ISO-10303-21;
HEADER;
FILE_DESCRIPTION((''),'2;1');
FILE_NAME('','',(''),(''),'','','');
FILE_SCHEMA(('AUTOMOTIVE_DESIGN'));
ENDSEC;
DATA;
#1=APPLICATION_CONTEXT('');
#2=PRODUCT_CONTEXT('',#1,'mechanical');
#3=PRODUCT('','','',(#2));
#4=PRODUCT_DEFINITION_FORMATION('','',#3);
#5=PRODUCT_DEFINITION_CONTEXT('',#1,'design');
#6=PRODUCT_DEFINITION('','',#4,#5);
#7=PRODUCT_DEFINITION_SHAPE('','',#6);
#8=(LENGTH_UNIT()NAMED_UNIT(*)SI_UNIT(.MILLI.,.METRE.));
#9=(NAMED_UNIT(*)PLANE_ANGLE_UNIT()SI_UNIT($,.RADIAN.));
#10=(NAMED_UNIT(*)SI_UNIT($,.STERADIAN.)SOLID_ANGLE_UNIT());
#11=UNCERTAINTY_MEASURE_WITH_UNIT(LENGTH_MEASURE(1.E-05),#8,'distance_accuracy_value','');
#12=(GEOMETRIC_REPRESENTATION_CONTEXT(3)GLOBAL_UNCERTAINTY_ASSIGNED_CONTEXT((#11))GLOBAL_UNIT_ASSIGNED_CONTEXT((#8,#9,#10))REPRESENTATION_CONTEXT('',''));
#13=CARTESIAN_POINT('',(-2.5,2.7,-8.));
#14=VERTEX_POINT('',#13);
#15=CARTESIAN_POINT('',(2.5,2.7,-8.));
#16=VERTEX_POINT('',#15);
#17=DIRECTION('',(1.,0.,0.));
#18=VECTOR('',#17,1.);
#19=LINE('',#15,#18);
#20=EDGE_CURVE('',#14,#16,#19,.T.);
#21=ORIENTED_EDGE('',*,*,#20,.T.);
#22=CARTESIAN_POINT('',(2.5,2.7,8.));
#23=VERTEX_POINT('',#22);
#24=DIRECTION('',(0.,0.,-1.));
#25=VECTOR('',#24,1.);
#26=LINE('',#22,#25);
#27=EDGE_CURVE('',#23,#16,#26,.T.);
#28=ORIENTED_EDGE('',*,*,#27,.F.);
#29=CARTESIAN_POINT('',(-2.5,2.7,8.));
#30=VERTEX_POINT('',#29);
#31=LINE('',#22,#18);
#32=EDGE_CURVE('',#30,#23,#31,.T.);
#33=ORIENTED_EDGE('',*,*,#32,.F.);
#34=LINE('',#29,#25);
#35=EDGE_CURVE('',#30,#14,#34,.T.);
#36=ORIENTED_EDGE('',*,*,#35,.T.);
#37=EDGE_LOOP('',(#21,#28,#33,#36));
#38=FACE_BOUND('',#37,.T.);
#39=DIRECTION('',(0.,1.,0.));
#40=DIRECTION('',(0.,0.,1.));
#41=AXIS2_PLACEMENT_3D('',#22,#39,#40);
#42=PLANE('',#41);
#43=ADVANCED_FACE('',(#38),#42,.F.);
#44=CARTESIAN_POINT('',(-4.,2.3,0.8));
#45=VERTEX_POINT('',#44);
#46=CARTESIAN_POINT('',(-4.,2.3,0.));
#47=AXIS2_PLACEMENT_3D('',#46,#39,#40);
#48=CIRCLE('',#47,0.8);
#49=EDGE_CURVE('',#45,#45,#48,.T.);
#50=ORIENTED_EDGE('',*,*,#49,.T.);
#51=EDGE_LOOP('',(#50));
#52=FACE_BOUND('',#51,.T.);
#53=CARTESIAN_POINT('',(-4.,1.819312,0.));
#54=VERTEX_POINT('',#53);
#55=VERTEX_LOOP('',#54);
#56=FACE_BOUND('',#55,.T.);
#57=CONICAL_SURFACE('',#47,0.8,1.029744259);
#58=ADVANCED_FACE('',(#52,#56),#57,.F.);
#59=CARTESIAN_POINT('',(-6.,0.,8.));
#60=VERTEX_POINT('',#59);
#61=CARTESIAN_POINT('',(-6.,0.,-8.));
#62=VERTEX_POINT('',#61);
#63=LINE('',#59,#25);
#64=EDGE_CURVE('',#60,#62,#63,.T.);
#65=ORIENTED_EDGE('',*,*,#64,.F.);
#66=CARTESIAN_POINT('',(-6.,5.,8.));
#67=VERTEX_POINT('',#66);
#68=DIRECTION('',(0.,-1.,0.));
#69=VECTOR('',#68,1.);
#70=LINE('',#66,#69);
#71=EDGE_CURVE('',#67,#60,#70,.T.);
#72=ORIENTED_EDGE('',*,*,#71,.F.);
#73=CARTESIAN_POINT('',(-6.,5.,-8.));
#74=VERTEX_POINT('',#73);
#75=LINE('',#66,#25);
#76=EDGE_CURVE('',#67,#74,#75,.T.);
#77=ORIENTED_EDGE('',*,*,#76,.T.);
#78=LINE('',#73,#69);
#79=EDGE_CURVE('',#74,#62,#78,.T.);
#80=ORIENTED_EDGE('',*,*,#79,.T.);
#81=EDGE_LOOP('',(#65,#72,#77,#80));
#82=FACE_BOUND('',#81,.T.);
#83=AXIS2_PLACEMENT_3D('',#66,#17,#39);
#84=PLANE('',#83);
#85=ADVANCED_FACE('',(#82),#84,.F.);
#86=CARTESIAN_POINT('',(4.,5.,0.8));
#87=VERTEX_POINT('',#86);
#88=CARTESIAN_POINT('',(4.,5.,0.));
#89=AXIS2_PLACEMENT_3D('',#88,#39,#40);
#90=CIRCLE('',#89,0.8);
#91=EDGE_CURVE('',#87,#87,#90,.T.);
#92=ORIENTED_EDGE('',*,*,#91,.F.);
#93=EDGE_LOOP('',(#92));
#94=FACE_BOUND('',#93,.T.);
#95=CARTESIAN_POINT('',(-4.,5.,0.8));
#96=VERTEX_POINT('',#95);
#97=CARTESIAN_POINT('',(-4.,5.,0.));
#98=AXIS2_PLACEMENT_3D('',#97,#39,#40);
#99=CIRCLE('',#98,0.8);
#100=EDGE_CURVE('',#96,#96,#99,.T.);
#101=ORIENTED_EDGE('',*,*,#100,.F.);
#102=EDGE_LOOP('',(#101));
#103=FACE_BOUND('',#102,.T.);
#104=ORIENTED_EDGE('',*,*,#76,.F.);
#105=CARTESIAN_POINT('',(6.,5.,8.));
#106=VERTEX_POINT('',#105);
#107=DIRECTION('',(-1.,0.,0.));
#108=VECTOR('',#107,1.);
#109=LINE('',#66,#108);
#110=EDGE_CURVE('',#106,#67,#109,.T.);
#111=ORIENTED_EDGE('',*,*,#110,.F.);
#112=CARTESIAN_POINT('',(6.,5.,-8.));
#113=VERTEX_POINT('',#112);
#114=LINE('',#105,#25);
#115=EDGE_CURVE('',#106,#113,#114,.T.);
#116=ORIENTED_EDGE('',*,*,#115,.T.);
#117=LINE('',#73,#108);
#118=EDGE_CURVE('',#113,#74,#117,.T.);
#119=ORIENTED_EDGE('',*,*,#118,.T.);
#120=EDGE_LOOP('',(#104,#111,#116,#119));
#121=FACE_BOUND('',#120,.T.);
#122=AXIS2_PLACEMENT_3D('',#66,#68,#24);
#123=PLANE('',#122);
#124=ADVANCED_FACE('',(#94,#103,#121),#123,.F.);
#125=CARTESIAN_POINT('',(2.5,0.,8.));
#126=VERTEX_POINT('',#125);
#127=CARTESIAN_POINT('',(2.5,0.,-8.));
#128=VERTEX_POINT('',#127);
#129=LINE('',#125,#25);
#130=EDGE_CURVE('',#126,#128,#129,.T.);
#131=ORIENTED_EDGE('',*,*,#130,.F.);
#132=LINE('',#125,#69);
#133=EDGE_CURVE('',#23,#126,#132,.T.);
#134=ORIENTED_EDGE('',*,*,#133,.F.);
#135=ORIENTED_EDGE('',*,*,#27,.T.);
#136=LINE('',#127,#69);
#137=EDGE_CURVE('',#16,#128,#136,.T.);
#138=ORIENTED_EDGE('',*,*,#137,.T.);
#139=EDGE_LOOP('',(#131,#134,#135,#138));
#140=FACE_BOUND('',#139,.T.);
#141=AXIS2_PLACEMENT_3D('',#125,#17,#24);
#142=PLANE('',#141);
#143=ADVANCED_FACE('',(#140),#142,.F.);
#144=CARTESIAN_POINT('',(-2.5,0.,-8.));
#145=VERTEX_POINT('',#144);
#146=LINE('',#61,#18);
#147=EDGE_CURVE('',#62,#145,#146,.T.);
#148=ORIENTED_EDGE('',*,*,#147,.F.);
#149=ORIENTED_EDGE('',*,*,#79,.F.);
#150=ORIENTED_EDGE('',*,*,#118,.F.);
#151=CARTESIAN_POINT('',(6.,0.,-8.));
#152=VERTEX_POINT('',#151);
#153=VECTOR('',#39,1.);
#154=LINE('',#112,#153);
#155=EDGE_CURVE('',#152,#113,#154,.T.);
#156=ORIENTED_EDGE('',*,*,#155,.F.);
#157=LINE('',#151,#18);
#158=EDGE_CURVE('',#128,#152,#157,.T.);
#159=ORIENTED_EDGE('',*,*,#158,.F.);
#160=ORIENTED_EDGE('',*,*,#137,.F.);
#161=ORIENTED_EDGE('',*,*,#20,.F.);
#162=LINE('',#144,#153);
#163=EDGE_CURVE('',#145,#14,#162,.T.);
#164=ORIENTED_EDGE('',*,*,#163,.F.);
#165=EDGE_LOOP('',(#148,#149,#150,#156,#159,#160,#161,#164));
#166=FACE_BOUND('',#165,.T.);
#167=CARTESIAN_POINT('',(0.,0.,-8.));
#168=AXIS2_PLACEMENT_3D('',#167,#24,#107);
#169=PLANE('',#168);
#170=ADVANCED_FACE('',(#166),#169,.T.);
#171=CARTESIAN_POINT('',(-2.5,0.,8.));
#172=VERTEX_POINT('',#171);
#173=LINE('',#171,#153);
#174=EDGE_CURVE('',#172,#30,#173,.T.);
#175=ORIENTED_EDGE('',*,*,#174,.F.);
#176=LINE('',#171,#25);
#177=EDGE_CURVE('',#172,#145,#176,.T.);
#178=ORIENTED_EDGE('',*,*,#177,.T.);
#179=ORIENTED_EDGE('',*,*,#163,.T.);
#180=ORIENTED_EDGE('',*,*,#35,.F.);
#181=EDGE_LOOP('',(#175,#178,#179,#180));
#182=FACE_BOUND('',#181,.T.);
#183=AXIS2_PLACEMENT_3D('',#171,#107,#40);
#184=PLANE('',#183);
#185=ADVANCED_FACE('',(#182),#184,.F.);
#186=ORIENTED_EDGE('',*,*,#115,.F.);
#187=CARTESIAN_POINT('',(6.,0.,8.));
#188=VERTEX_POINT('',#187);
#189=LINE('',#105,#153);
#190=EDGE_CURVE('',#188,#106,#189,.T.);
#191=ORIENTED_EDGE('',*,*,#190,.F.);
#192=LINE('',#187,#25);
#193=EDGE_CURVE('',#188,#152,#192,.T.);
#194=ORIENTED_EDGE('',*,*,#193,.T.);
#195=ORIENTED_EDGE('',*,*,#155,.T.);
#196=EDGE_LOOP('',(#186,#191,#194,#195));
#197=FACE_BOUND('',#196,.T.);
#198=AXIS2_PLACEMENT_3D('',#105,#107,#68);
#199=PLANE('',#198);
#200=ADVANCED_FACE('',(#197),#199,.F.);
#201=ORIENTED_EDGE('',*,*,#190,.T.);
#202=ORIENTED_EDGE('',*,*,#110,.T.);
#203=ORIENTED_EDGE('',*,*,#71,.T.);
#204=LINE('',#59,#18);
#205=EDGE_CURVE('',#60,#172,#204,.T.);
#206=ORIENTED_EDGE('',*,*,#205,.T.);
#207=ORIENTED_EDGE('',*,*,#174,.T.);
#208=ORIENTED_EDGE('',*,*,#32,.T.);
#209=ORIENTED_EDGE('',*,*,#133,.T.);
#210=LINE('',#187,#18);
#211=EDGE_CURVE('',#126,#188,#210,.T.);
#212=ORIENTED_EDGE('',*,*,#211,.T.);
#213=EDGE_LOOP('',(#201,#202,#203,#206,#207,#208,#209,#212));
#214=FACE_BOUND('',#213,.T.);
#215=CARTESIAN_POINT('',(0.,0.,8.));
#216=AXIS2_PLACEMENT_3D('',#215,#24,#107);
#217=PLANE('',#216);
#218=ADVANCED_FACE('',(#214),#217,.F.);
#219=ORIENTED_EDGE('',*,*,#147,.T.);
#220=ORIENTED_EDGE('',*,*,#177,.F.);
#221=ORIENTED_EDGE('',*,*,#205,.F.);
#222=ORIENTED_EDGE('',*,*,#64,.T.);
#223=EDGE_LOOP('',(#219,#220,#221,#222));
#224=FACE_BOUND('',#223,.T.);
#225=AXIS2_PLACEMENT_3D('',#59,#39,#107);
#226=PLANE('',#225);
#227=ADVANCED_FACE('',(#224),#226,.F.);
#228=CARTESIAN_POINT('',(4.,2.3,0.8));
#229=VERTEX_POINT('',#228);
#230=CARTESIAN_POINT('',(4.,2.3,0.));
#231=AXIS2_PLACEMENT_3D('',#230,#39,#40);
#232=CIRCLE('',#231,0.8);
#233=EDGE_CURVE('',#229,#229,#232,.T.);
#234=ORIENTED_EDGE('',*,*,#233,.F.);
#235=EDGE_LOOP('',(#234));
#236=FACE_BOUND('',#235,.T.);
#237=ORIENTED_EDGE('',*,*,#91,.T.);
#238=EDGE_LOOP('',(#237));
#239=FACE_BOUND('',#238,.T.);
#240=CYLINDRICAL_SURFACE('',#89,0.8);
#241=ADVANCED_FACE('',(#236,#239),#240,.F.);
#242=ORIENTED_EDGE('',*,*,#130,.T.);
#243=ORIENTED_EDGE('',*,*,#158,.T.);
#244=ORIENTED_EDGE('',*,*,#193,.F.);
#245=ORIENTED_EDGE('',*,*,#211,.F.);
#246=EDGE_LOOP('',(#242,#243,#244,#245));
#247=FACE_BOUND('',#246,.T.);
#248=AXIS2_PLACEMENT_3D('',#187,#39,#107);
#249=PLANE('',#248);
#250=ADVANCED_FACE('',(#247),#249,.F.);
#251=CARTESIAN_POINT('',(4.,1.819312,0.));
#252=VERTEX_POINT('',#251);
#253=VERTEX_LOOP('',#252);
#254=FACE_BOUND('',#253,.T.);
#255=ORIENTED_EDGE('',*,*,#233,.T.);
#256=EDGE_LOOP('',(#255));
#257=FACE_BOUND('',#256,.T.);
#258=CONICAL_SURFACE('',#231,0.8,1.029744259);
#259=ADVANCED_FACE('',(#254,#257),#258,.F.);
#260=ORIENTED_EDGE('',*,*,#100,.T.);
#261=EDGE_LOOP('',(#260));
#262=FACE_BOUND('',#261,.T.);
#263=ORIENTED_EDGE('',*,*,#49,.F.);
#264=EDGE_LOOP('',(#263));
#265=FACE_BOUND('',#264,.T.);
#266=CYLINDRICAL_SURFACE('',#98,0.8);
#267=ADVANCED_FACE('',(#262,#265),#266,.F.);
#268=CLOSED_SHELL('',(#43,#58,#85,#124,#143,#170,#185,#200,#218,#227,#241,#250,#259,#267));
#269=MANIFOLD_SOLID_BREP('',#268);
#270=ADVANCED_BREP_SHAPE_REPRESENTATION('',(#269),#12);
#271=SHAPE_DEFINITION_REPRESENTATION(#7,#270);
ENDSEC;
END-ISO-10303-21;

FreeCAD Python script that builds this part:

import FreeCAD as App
import Part
import Sketcher
from FreeCAD import Vector


def add_polygon(sketch, points):
    """Adds a closed chain of lines whose ends are joined by coincident constraints."""
    first, n = sketch.GeometryCount, len(points)
    for a, b in zip(points, points[1:] + points[:1]):
        sketch.addGeometry(Part.LineSegment(App.Vector(*a, 0), App.Vector(*b, 0)), False)
    for i in range(n):
        sketch.addConstraint(Sketcher.Constraint("Coincident", first + i, 2, first + (i + 1) % n, 1))

doc = App.newDocument("Part")
params = doc.addObject("Spreadsheet::Sheet", "Params")
for row, (alias, value) in enumerate([
    ("sketch1_width", "12 mm"),
    ("sketch1_width2", "5 mm"),
    ("sketch1_height", "2.7 mm"),
    ("pad1_length", "16 mm"),
    ("sketch2_diameter", "1.6 mm"),
    ("hole_diameter", "1.6 mm"),
    ("hole_depth", "2.7 mm"),
], start=1):
    params.set(f"A{row}", alias)
    params.set(f"B{row}", "=" + value)
    params.setAlias(f"B{row}", alias)

body = doc.addObject("PartDesign::Body", "Body")

sketch1 = body.newObject("Sketcher::SketchObject", "Sketch")
sketch1.AttachmentSupport = (doc.getObject("XY_Plane"), [""])
sketch1.MapMode = "FlatFace"
add_polygon(sketch1, [(6, 5), (-6, 5), (-6, 0), (-2.5, 0), (-2.5, 2.7), (2.5, 2.7), (2.5, 0), (6, 0)])
sketch1.addConstraint(Sketcher.Constraint("Horizontal", 0))
sketch1.addConstraint(Sketcher.Constraint("Vertical", 1))
sketch1.addConstraint(Sketcher.Constraint("Horizontal", 2))
sketch1.addConstraint(Sketcher.Constraint("Vertical", 3))
sketch1.addConstraint(Sketcher.Constraint("Horizontal", 4))
sketch1.addConstraint(Sketcher.Constraint("Vertical", 5))
sketch1.addConstraint(Sketcher.Constraint("Horizontal", 6))
sketch1.addConstraint(Sketcher.Constraint("Vertical", 7))
sketch1.addConstraint(Sketcher.Constraint("Symmetric", 2, 2, 5, 2, -1, 1))
sketch1.addConstraint(Sketcher.Constraint("Symmetric", 1, 2, 6, 2, -2))
sketch1.addConstraint(Sketcher.Constraint("Equal", 4, 1))
sketch1.addConstraint(Sketcher.Constraint("DistanceX", 0, 2, 0, 1, 12.0))
sketch1.addConstraint(Sketcher.Constraint("DistanceX", 4, 1, 4, 2, 5.0))
sketch1.addConstraint(Sketcher.Constraint("DistanceY", 3, 1, 3, 2, 2.7))
sketch1.setExpression("Constraints[19]", "Params.sketch1_width")
sketch1.setExpression("Constraints[20]", "Params.sketch1_width2")
sketch1.setExpression("Constraints[21]", "Params.sketch1_height")
pad1 = body.newObject("PartDesign::Pad", "Pad")
pad1.Profile = sketch1
pad1.setExpression("Length", "Params.pad1_length")
pad1.Midplane = True

sketch2 = body.newObject("Sketcher::SketchObject", "Sketch001")
sketch2.AttachmentSupport = (doc.getObject("XZ_Plane"), [""])
sketch2.MapMode = "FlatFace"
sketch2.AttachmentOffset = App.Placement(Vector(0, 0, -5), App.Rotation())
sketch2.addGeometry(Part.Circle(Vector(-4, 0, 0), Vector(0, 0, 1), 0.8), False)
sketch2.addGeometry(Part.Circle(Vector(4, 0, 0), Vector(0, 0, 1), 0.8), False)
sketch2.addConstraint(Sketcher.Constraint("Equal", 0, 1))
sketch2.addConstraint(Sketcher.Constraint("Symmetric", 0, 3, 1, 3, -1, 1))
sketch2.addConstraint(Sketcher.Constraint("PointOnObject", 0, 3, -1))
sketch2.addConstraint(Sketcher.Constraint("Diameter", 0, 1.6))
sketch2.addConstraint(Sketcher.Constraint("DistanceX", 0, 3, -1, 1, 4.0))
sketch2.setExpression("Constraints[3]", "Params.sketch2_diameter")
doc.recompute()
hole = body.newObject("PartDesign::Hole", "Hole")
hole.Profile = sketch2
hole.ThreadType = "None"
hole.setExpression("Diameter", "Params.hole_diameter")
hole.DepthType = "Dimension"
hole.setExpression("Depth", "Params.hole_depth")
hole.DrillPoint = "Angled"
hole.DrillPointAngle = 118
hole.Reversed = True

doc.recompute()
